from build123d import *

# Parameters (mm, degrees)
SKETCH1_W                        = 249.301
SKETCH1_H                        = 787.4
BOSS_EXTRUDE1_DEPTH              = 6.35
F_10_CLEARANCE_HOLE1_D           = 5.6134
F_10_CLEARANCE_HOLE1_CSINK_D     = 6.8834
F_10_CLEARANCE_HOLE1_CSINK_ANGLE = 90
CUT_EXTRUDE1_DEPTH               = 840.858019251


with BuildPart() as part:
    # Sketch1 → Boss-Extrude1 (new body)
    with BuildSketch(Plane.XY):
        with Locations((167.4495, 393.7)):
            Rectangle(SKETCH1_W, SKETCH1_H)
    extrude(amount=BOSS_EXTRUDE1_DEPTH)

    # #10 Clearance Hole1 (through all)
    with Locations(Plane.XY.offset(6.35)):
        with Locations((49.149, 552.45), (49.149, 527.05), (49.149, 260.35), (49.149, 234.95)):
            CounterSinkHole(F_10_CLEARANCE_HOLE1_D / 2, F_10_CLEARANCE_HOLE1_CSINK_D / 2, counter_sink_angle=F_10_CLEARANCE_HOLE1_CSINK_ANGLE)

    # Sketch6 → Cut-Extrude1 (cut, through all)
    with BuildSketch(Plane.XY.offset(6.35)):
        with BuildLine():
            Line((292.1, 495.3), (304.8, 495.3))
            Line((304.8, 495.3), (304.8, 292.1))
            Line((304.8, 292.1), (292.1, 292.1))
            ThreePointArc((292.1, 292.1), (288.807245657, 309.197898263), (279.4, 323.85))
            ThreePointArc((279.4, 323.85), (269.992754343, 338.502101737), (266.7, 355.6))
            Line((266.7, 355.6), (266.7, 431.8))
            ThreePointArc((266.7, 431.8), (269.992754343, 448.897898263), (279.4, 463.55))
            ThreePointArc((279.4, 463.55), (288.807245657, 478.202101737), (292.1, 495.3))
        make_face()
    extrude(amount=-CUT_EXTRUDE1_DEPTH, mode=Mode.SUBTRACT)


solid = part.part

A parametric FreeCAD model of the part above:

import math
import FreeCAD as App
import Part
import Sketcher
from FreeCAD import Vector
Q = App.Units.Quantity


def add_polygon(sketch, points):
    """Adds a closed chain of lines whose ends are joined by coincident constraints."""
    first, n = sketch.GeometryCount, len(points)
    for a, b in zip(points, points[1:] + points[:1]):
        sketch.addGeometry(Part.LineSegment(App.Vector(*a, 0), App.Vector(*b, 0)), False)
    for i in range(n):
        sketch.addConstraint(Sketcher.Constraint("Coincident", first + i, 2, first + (i + 1) % n, 1))

doc = App.newDocument("Part")
body = doc.addObject("PartDesign::Body", "Body")

# Sketch on XY plane
sketch1 = doc.addObject("Sketcher::SketchObject", "Sketch")
body.addObject(sketch1)
sketch1.AttachmentSupport = (doc.XY_Plane, [""])
sketch1.MapMode = "FlatFace"
add_polygon(sketch1, [(43, 787), (43, 0), (292, 0), (292, 787)])  # lines 0-3
sketch1.addConstraint(Sketcher.Constraint("Vertical", 0))
sketch1.addConstraint(Sketcher.Constraint("Horizontal", 1))
sketch1.addConstraint(Sketcher.Constraint("Vertical", 2))
sketch1.addConstraint(Sketcher.Constraint("Horizontal", 3))
sketch1.addConstraint(Sketcher.Constraint("PointOnObject", 0, 2, -1))
sketch1.addConstraint(Sketcher.Constraint("DistanceY", 0, 2, 0, 1, Q("31 in")))
sketch1.addConstraint(Sketcher.Constraint("DistanceX", -1, 1, 1, 2, Q("11.5 in")))
sketch1.addConstraint(Sketcher.Constraint("DistanceX", 1, 1, 1, 2, Q("9.815 in")))
pad1 = doc.addObject("PartDesign::Pad", "Pad")
body.addObject(pad1)
pad1.Profile = sketch1
pad1.Length = Q("0.25 in")

# Sketch on XY plane
sketch2 = doc.addObject("Sketcher::SketchObject", "Sketch001")
body.addObject(sketch2)
sketch2.AttachmentSupport = (doc.XY_Plane, [""])
sketch2.MapMode = "FlatFace"
sketch2.AttachmentOffset = App.Placement(Vector(0, 0, 0.25 * 25.4), App.Rotation())
sketch2.addGeometry(Part.Circle(Vector(49.1, 552.5, 0), Vector(0, 0, 1), 2.8), False)
sketch2.addGeometry(Part.Circle(Vector(49.1, 527, 0), Vector(0, 0, 1), 2.8), False)
sketch2.addGeometry(Part.Circle(Vector(49.1, 260.4, 0), Vector(0, 0, 1), 2.8), False)
sketch2.addGeometry(Part.Circle(Vector(49.1, 234.9, 0), Vector(0, 0, 1), 2.8), False)
sketch2.addConstraint(Sketcher.Constraint("Equal", 0, 1))
sketch2.addConstraint(Sketcher.Constraint("Equal", 1, 2))
sketch2.addConstraint(Sketcher.Constraint("Equal", 2, 3))
sketch2.addConstraint(Sketcher.Constraint("Vertical", 0, 3, 1, 3))
sketch2.addConstraint(Sketcher.Constraint("Vertical", 1, 3, 2, 3))
sketch2.addConstraint(Sketcher.Constraint("Vertical", 2, 3, 3, 3))
sketch2.addConstraint(Sketcher.Constraint("Diameter", 0, Q("0.221 in")))
sketch2.addConstraint(Sketcher.Constraint("DistanceY", 1, 3, 0, 3, Q("1 in")))
sketch2.addConstraint(Sketcher.Constraint("DistanceY", 3, 3, 2, 3, Q("1 in")))
sketch2.addConstraint(Sketcher.Constraint("DistanceY", 2, 3, 1, 3, Q("10.5 in")))
sketch2.addConstraint(Sketcher.Constraint("DistanceY", -1, 1, 0, 3, Q("21.75 in")))
sketch2.addConstraint(Sketcher.Constraint("DistanceX", -1, 1, 0, 3, Q("1.935 in")))
doc.recompute()
hole = doc.addObject("PartDesign::Hole", "Hole")
body.addObject(hole)
hole.Profile = sketch2
hole.ThreadType = "None"
hole.Diameter = Q("0.221 in")
hole.DepthType = "ThroughAll"
hole.HoleCutType = "Countersink"
hole.HoleCutDiameter = Q("0.271 in")
hole.HoleCutCountersinkAngle = 90

# Sketch on XY plane
sketch3 = doc.addObject("Sketcher::SketchObject", "Sketch002")
body.addObject(sketch3)
sketch3.AttachmentSupport = (doc.XY_Plane, [""])
sketch3.MapMode = "FlatFace"
sketch3.AttachmentOffset = App.Placement(Vector(0, 0, 0.25 * 25.4), App.Rotation())
sketch3.addGeometry(Part.LineSegment(Vector(305, 495, 0), Vector(292, 495, 0)), False)
sketch3.addGeometry(Part.ArcOfCircle(Part.Circle(Vector(246, 495, 0), Vector(0, 0, 1), 46), math.radians(-44), math.radians(0)), False)
sketch3.addGeometry(Part.ArcOfCircle(Part.Circle(Vector(313, 432, 0), Vector(0, 0, 1), 46), math.radians(136), math.radians(180)), False)
sketch3.addGeometry(Part.LineSegment(Vector(267, 432, 0), Vector(267, 356, 0)), False)
sketch3.addGeometry(Part.ArcOfCircle(Part.Circle(Vector(313, 356, 0), Vector(0, 0, 1), 46), math.radians(180), math.radians(224)), False)
sketch3.addGeometry(Part.ArcOfCircle(Part.Circle(Vector(246, 292, 0), Vector(0, 0, 1), 46), math.radians(0), math.radians(44)), False)
sketch3.addGeometry(Part.LineSegment(Vector(292, 292, 0), Vector(305, 292, 0)), False)
sketch3.addGeometry(Part.LineSegment(Vector(305, 292, 0), Vector(305, 495, 0)), False)
sketch3.addConstraint(Sketcher.Constraint("Coincident", 0, 2, 1, 2))
sketch3.addConstraint(Sketcher.Constraint("Tangent", 1, 1, 2, 1))
sketch3.addConstraint(Sketcher.Constraint("Tangent", 2, 2, 3, 1))
sketch3.addConstraint(Sketcher.Constraint("Tangent", 3, 2, 4, 1))
sketch3.addConstraint(Sketcher.Constraint("Tangent", 4, 2, 5, 2))
sketch3.addConstraint(Sketcher.Constraint("Coincident", 5, 1, 6, 1))
sketch3.addConstraint(Sketcher.Constraint("Coincident", 6, 2, 7, 1))
sketch3.addConstraint(Sketcher.Constraint("Coincident", 7, 2, 0, 1))
sketch3.addConstraint(Sketcher.Constraint("Horizontal", 0))
sketch3.addConstraint(Sketcher.Constraint("Vertical", 3))
sketch3.addConstraint(Sketcher.Constraint("Horizontal", 6))
sketch3.addConstraint(Sketcher.Constraint("Vertical", 7))
sketch3.addConstraint(Sketcher.Constraint("Equal", 1, 2))
sketch3.addConstraint(Sketcher.Constraint("Equal", 2, 4))
sketch3.addConstraint(Sketcher.Constraint("Equal", 4, 5))
sketch3.addConstraint(Sketcher.Constraint("Horizontal", 1, 3, 0, 2))
sketch3.addConstraint(Sketcher.Constraint("Vertical", 1, 3, 5, 3))
sketch3.addConstraint(Sketcher.Constraint("DistanceY", 3, 2, 3, 1, Q("3 in")))
sketch3.addConstraint(Sketcher.Constraint("DistanceY", 7, 1, 7, 2, Q("8 in")))
sketch3.addConstraint(Sketcher.Constraint("DistanceX", 0, 2, 0, 1, Q("0.5 in")))
sketch3.addConstraint(Sketcher.Constraint("DistanceY", -1, 1, 2, 3, Q("17 in")))
sketch3.addConstraint(Sketcher.Constraint("DistanceX", -1, 1, 1, 1, Q("11 in")))
sketch3.addConstraint(Sketcher.Constraint("DistanceX", -1, 1, 6, 2, Q("12 in")))
sketch3.addConstraint(Sketcher.Constraint("Radius", 1, Q("1.8125 in")))
pocket1 = doc.addObject("PartDesign::Pocket", "Pocket")
body.addObject(pocket1)
pocket1.Profile = sketch3
pocket1.Type = "ThroughAll"

doc.recompute()
